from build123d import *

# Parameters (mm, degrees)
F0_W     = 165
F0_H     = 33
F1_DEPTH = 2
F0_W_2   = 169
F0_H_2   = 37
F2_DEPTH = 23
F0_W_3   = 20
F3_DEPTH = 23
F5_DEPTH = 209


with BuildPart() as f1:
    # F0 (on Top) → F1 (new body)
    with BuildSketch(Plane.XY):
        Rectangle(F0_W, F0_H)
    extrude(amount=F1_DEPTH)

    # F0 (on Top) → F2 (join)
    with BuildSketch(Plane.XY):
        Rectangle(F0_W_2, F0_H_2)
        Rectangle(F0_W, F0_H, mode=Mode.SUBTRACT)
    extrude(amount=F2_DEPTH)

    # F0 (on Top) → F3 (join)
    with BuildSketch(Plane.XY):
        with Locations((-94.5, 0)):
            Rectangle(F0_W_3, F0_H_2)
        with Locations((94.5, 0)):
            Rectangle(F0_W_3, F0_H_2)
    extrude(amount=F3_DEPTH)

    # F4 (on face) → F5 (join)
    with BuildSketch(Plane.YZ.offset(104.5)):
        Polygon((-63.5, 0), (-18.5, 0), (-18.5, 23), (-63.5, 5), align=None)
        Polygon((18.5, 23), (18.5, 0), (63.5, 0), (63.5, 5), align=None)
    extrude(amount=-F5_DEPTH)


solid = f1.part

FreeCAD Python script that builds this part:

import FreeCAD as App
import Part
import Sketcher
from FreeCAD import Vector


def add_polygon(sketch, points):
    """Adds a closed chain of lines whose ends are joined by coincident constraints."""
    first, n = sketch.GeometryCount, len(points)
    for a, b in zip(points, points[1:] + points[:1]):
        sketch.addGeometry(Part.LineSegment(App.Vector(*a, 0), App.Vector(*b, 0)), False)
    for i in range(n):
        sketch.addConstraint(Sketcher.Constraint("Coincident", first + i, 2, first + (i + 1) % n, 1))

doc = App.newDocument("Part")
body = doc.addObject("PartDesign::Body", "Body")

sketch1 = doc.addObject("Sketcher::SketchObject", "Sketch")
body.addObject(sketch1)
sketch1.AttachmentSupport = (doc.XY_Plane, [""])
sketch1.MapMode = "FlatFace"
add_polygon(sketch1, [(-82, 16), (-82, -16), (82, -16), (82, 16)])
sketch1.addConstraint([
    Sketcher.Constraint("Vertical", 0),
    Sketcher.Constraint("Horizontal", 1),
    Sketcher.Constraint("Vertical", 2),
    Sketcher.Constraint("Horizontal", 3),
    Sketcher.Constraint("Symmetric", 0, 2, 2, 2, -1, 1),
    Sketcher.Constraint("DistanceX", 1, 1, 1, 2, 165.0),
    Sketcher.Constraint("DistanceY", 0, 2, 0, 1, 33.0),
])
pad1 = doc.addObject("PartDesign::Pad", "Pad")
body.addObject(pad1)
pad1.Profile = sketch1
pad1.Length = 2

sketch2 = doc.addObject("Sketcher::SketchObject", "Sketch001")
body.addObject(sketch2)
sketch2.AttachmentSupport = (doc.XY_Plane, [""])
sketch2.MapMode = "FlatFace"
add_polygon(sketch2, [(-84, 18), (-84, -18), (84, -18), (84, 18)])
add_polygon(sketch2, [(82, -16), (-82, -16), (-82, 16), (82, 16)])
sketch2.addConstraint([
    Sketcher.Constraint("Vertical", 0),
    Sketcher.Constraint("Horizontal", 1),
    Sketcher.Constraint("Vertical", 2),
    Sketcher.Constraint("Horizontal", 3),
    Sketcher.Constraint("Horizontal", 4),
    Sketcher.Constraint("Vertical", 5),
    Sketcher.Constraint("Horizontal", 6),
    Sketcher.Constraint("Vertical", 7),
    Sketcher.Constraint("Symmetric", 0, 2, 2, 2, -1, 1),
    Sketcher.Constraint("Symmetric", 4, 2, 6, 2, -1, 1),
    Sketcher.Constraint("DistanceX", 1, 1, 1, 2, 169.0),
    Sketcher.Constraint("DistanceX", 4, 2, 4, 1, 165.0),
    Sketcher.Constraint("DistanceY", 0, 2, 0, 1, 37.0),
    Sketcher.Constraint("DistanceY", 5, 1, 5, 2, 33.0),
])
pad2 = doc.addObject("PartDesign::Pad", "Pad001")
body.addObject(pad2)
pad2.Profile = sketch2
pad2.Length = 23

sketch3 = doc.addObject("Sketcher::SketchObject", "Sketch002")
body.addObject(sketch3)
sketch3.AttachmentSupport = (doc.XY_Plane, [""])
sketch3.MapMode = "FlatFace"
add_polygon(sketch3, [(-104, 18), (-104, -18), (-84, -18), (-84, 18)])
add_polygon(sketch3, [(84, 18), (84, -18), (104, -18), (104, 18)])
sketch3.addConstraint([
    Sketcher.Constraint("Vertical", 0),
    Sketcher.Constraint("Horizontal", 1),
    Sketcher.Constraint("Vertical", 2),
    Sketcher.Constraint("Horizontal", 3),
    Sketcher.Constraint("Vertical", 4),
    Sketcher.Constraint("Horizontal", 5),
    Sketcher.Constraint("Vertical", 6),
    Sketcher.Constraint("Horizontal", 7),
    Sketcher.Constraint("Symmetric", 2, 2, 4, 2, -1, 1),
    Sketcher.Constraint("Symmetric", 0, 2, 6, 2, -1, 1),
    Sketcher.Constraint("Horizontal", 1, 2, 4, 2),
    Sketcher.Constraint("DistanceX", 1, 1, 1, 2, 20.0),
    Sketcher.Constraint("DistanceY", 0, 2, 0, 1, 37.0),
    Sketcher.Constraint("DistanceX", 1, 2, 4, 2, 169.0),
])
pad3 = doc.addObject("PartDesign::Pad", "Pad002")
body.addObject(pad3)
pad3.Profile = sketch3
pad3.Length = 23

sketch4 = doc.addObject("Sketcher::SketchObject", "Sketch003")
body.addObject(sketch4)
sketch4.AttachmentSupport = (doc.YZ_Plane, [""])
sketch4.MapMode = "FlatFace"
sketch4.AttachmentOffset = App.Placement(Vector(0, 0, 104.5), App.Rotation())
add_polygon(sketch4, [(-64, 0), (-18, 0), (-18, 23), (-64, 5)])
add_polygon(sketch4, [(18, 23), (18, 0), (64, 0), (64, 5)])
sketch4.addConstraint([
    Sketcher.Constraint("Horizontal", 0),
    Sketcher.Constraint("Vertical", 1),
    Sketcher.Constraint("Vertical", 3),
    Sketcher.Constraint("Vertical", 4),
    Sketcher.Constraint("Horizontal", 5),
    Sketcher.Constraint("Vertical", 6),
    Sketcher.Constraint("Symmetric", 0, 2, 4, 2, -1, 1),
    Sketcher.Constraint("Symmetric", 3, 2, 5, 2, -2),
    Sketcher.Constraint("Horizontal", 2, 2, 6, 2),
    Sketcher.Constraint("Horizontal", 1, 2, 7, 2),
    Sketcher.Constraint("DistanceX", 0, 1, 0, 2, 45.0),
    Sketcher.Constraint("DistanceY", 1, 1, 1, 2, 23.0),
    Sketcher.Constraint("DistanceY", 3, 2, 3, 1, 5.0),
    Sketcher.Constraint("DistanceX", 0, 2, 4, 2, 37.0),
])
pad4 = doc.addObject("PartDesign::Pad", "Pad003")
body.addObject(pad4)
pad4.Profile = sketch4
pad4.Length = 209
pad4.Reversed = True

doc.recompute()
